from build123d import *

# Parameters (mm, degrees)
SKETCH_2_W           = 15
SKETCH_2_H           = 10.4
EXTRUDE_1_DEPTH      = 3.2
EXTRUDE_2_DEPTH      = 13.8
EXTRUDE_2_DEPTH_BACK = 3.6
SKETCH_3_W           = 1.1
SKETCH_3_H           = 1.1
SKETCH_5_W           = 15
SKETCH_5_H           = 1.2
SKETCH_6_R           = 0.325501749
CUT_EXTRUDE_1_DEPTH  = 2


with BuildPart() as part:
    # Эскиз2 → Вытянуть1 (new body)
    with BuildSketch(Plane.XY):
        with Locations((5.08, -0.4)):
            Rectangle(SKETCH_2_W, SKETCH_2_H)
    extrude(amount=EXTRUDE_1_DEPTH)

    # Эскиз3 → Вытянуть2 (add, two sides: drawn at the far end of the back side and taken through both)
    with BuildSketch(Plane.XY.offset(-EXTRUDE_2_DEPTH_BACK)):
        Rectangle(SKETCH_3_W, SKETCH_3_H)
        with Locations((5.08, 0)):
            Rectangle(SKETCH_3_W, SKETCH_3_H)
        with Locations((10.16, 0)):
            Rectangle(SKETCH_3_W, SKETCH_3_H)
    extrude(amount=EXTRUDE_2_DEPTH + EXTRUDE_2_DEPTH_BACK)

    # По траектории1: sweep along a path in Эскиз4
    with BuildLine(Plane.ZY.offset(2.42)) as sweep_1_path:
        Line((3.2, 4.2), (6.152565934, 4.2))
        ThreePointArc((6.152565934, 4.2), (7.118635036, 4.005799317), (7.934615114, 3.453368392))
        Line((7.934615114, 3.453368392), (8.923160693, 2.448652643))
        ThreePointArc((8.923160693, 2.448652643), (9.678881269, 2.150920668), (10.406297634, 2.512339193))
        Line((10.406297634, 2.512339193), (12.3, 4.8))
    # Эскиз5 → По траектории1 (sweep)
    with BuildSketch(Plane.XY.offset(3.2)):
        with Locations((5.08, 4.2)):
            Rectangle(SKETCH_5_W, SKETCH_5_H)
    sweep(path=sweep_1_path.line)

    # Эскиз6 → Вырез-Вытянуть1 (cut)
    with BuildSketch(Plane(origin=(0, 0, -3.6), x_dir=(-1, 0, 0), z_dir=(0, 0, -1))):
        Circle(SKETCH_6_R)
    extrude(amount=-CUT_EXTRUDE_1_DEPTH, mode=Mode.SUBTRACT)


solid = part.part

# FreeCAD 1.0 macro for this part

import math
import FreeCAD as App
import Part
import Sketcher

V = App.Vector

doc = App.newDocument("Part")
params = doc.addObject("Spreadsheet::Sheet", "Params")
for row, (alias, value) in enumerate([
    ("sketch1_width", "15 mm"),
    ("sketch1_height", "10.4 mm"),
    ("pad1_length", "3.2 mm"),
    ("sketch2_width", "1.1 mm"),
    ("pad2_length", "13.8 mm"),
    ("pad2_length2", "3.6 mm"),
    ("sketch3_width", "15 mm"),
    ("sketch3_height", "1.2 mm"),
    ("sketch4_radius", "1 mm"),
    ("sketch4_radius2", "2.5 mm"),
    ("pocket1_length", "2 mm"),
], start=1):
    params.set(f"A{row}", alias)
    params.set(f"B{row}", "=" + value)
    params.setAlias(f"B{row}", alias)

body = doc.addObject("PartDesign::Body", "Body")

sketch1 = body.newObject("Sketcher::SketchObject", "Sketch")
sketch1.AttachmentSupport = (doc.getObject("XY_Plane"), [""])
sketch1.MapMode = "FlatFace"
sketch1.addGeometry([
    Part.LineSegment(V(-2.42, 4.8, 0), V(-2.42, -5.6, 0)),
    Part.LineSegment(V(-2.42, -5.6, 0), V(12.58, -5.6, 0)),
    Part.LineSegment(V(12.58, -5.6, 0), V(12.58, 4.8, 0)),
    Part.LineSegment(V(12.58, 4.8, 0), V(-2.42, 4.8, 0)),
], False)
sketch1.addConstraint([
    Sketcher.Constraint("Coincident", 0, 2, 1, 1),
    Sketcher.Constraint("Coincident", 1, 2, 2, 1),
    Sketcher.Constraint("Coincident", 2, 2, 3, 1),
    Sketcher.Constraint("Coincident", 3, 2, 0, 1),
    Sketcher.Constraint("Vertical", 0),
    Sketcher.Constraint("Horizontal", 1),
    Sketcher.Constraint("Vertical", 2),
    Sketcher.Constraint("Horizontal", 3),
    Sketcher.Constraint("DistanceX", 1, 1, 1, 2, 15.0),
    Sketcher.Constraint("DistanceY", 0, 2, 0, 1, 10.4),
    Sketcher.Constraint("DistanceY", 0, 2, -1, 1, 5.6),
    Sketcher.Constraint("DistanceX", 0, 2, -1, 1, 2.42),
])
sketch1.setExpression("Constraints[8]", "Params.sketch1_width")
sketch1.setExpression("Constraints[9]", "Params.sketch1_height")
pad1 = body.newObject("PartDesign::Pad", "Pad")
pad1.Profile = sketch1
pad1.setExpression("Length", "Params.pad1_length")

sketch2 = body.newObject("Sketcher::SketchObject", "Sketch001")
sketch2.AttachmentSupport = (doc.getObject("XY_Plane"), [""])
sketch2.MapMode = "FlatFace"
sketch2.addGeometry([
    Part.LineSegment(V(-0.55, 0.55, 0), V(-0.55, -0.55, 0)),
    Part.LineSegment(V(-0.55, -0.55, 0), V(0.55, -0.55, 0)),
    Part.LineSegment(V(0.55, -0.55, 0), V(0.55, 0.55, 0)),
    Part.LineSegment(V(0.55, 0.55, 0), V(-0.55, 0.55, 0)),
    Part.LineSegment(V(4.53, 0.55, 0), V(4.53, -0.55, 0)),
    Part.LineSegment(V(4.53, -0.55, 0), V(5.63, -0.55, 0)),
    Part.LineSegment(V(5.63, -0.55, 0), V(5.63, 0.55, 0)),
    Part.LineSegment(V(5.63, 0.55, 0), V(4.53, 0.55, 0)),
    Part.LineSegment(V(9.61, 0.55, 0), V(9.61, -0.55, 0)),
    Part.LineSegment(V(9.61, -0.55, 0), V(10.71, -0.55, 0)),
    Part.LineSegment(V(10.71, -0.55, 0), V(10.71, 0.55, 0)),
    Part.LineSegment(V(10.71, 0.55, 0), V(9.61, 0.55, 0)),
], False)
sketch2.addConstraint([
    Sketcher.Constraint("Coincident", 0, 2, 1, 1),
    Sketcher.Constraint("Coincident", 1, 2, 2, 1),
    Sketcher.Constraint("Coincident", 2, 2, 3, 1),
    Sketcher.Constraint("Coincident", 3, 2, 0, 1),
    Sketcher.Constraint("Coincident", 4, 2, 5, 1),
    Sketcher.Constraint("Coincident", 5, 2, 6, 1),
    Sketcher.Constraint("Coincident", 6, 2, 7, 1),
    Sketcher.Constraint("Coincident", 7, 2, 4, 1),
    Sketcher.Constraint("Coincident", 8, 2, 9, 1),
    Sketcher.Constraint("Coincident", 9, 2, 10, 1),
    Sketcher.Constraint("Coincident", 10, 2, 11, 1),
    Sketcher.Constraint("Coincident", 11, 2, 8, 1),
    Sketcher.Constraint("Vertical", 0),
    Sketcher.Constraint("Horizontal", 1),
    Sketcher.Constraint("Vertical", 2),
    Sketcher.Constraint("Horizontal", 3),
    Sketcher.Constraint("Vertical", 4),
    Sketcher.Constraint("Horizontal", 5),
    Sketcher.Constraint("Vertical", 6),
    Sketcher.Constraint("Horizontal", 7),
    Sketcher.Constraint("Vertical", 8),
    Sketcher.Constraint("Horizontal", 9),
    Sketcher.Constraint("Vertical", 10),
    Sketcher.Constraint("Horizontal", 11),
    Sketcher.Constraint("Symmetric", 0, 2, 2, 2, -1, 1),
    Sketcher.Constraint("Horizontal", 1, 2, 4, 2),
    Sketcher.Constraint("Horizontal", 3, 2, 6, 2),
    Sketcher.Constraint("Horizontal", 5, 2, 8, 2),
    Sketcher.Constraint("Horizontal", 7, 2, 10, 2),
    Sketcher.Constraint("Equal", 3, 5),
    Sketcher.Constraint("Equal", 7, 9),
    Sketcher.Constraint("Equal", 11, 0),
    Sketcher.Constraint("DistanceX", 1, 1, 1, 2, 1.1),
    Sketcher.Constraint("DistanceX", -1, 1, 4, 2, 4.53),
    Sketcher.Constraint("DistanceX", -1, 1, 8, 2, 9.61),
])
sketch2.setExpression("Constraints[32]", "Params.sketch2_width")
pad2 = body.newObject("PartDesign::Pad", "Pad001")
pad2.Profile = sketch2
pad2.Type = "TwoLengths"
pad2.setExpression("Length", "Params.pad2_length")
pad2.setExpression("Length2", "Params.pad2_length2")

sketch3 = body.newObject("Sketcher::SketchObject", "Sketch002")
sketch3.AttachmentSupport = (doc.getObject("XY_Plane"), [""])
sketch3.MapMode = "FlatFace"
sketch3.AttachmentOffset = App.Placement(V(0, 0, 3.2), App.Rotation())
sketch3.addGeometry([
    Part.LineSegment(V(-2.42, 4.8, 0), V(-2.42, 3.6, 0)),
    Part.LineSegment(V(-2.42, 3.6, 0), V(12.58, 3.6, 0)),
    Part.LineSegment(V(12.58, 3.6, 0), V(12.58, 4.8, 0)),
    Part.LineSegment(V(12.58, 4.8, 0), V(-2.42, 4.8, 0)),
], False)
sketch3.addConstraint([
    Sketcher.Constraint("Coincident", 0, 2, 1, 1),
    Sketcher.Constraint("Coincident", 1, 2, 2, 1),
    Sketcher.Constraint("Coincident", 2, 2, 3, 1),
    Sketcher.Constraint("Coincident", 3, 2, 0, 1),
    Sketcher.Constraint("Vertical", 0),
    Sketcher.Constraint("Horizontal", 1),
    Sketcher.Constraint("Vertical", 2),
    Sketcher.Constraint("Horizontal", 3),
    Sketcher.Constraint("DistanceX", 1, 1, 1, 2, 15.0),
    Sketcher.Constraint("DistanceY", 0, 2, 0, 1, 1.2),
    Sketcher.Constraint("DistanceY", -1, 1, 0, 2, 3.6),
    Sketcher.Constraint("DistanceX", 0, 2, -1, 1, 2.42),
])
sketch3.setExpression("Constraints[8]", "Params.sketch3_width")
sketch3.setExpression("Constraints[9]", "Params.sketch3_height")

sketch4 = body.newObject("Sketcher::SketchObject", "Sketch003")
sketch4.AttachmentSupport = (doc.getObject("YZ_Plane"), [""])
sketch4.MapMode = "FlatFace"
sketch4.AttachmentOffset = App.Placement(V(0, 0, -2.42), App.Rotation())
sketch4.addGeometry([
    Part.LineSegment(V(4.2, 3.2, 0), V(4.2, 6.152566, 0)),
    Part.ArcOfCircle(Part.Circle(V(1.7, 6.152566, 0), V(0, 0, 1), 2.5), math.radians(0), math.radians(45.464797)),
    Part.LineSegment(V(3.453368, 7.934615, 0), V(2.448653, 8.923161, 0)),
    Part.ArcOfCircle(Part.Circle(V(3.15, 9.63598, 0), V(0, 0, 1), 1), math.radians(129.617612), math.radians(225.464797)),
    Part.LineSegment(V(2.512339, 10.406298, 0), V(4.8, 12.3, 0)),
], False)
sketch4.addConstraint([
    Sketcher.Constraint("Tangent", 0, 2, 1, 1),
    Sketcher.Constraint("Tangent", 1, 2, 2, 1),
    Sketcher.Constraint("Tangent", 2, 2, 3, 2),
    Sketcher.Constraint("Tangent", 3, 1, 4, 1),
    Sketcher.Constraint("Vertical", 0),
    Sketcher.Constraint("Radius", 3, 1.0),
    Sketcher.Constraint("Radius", 1, 2.5),
    Sketcher.Constraint("DistanceX", -1, 1, 1, 3, 1.7),
    Sketcher.Constraint("DistanceY", -1, 1, 0, 1, 3.2),
    Sketcher.Constraint("DistanceX", -1, 1, 4, 2, 4.8),
    Sketcher.Constraint("DistanceY", -1, 1, 4, 2, 12.3),
    Sketcher.Constraint("DistanceX", -1, 1, 3, 3, 3.15),
    Sketcher.Constraint("DistanceY", 0, 1, 0, 2, 2.952566),
    Sketcher.Constraint("DistanceY", -1, 1, 3, 3, 9.63598),
])
sketch4.setExpression("Constraints[5]", "Params.sketch4_radius")
sketch4.setExpression("Constraints[6]", "Params.sketch4_radius2")
doc.recompute()

additivepipe = body.newObject("PartDesign::AdditivePipe", "AdditivePipe")
additivepipe.Profile = sketch3
additivepipe.Spine = (sketch4, ["Edge1", "Edge2", "Edge3", "Edge4", "Edge5"])

sketch5 = body.newObject("Sketcher::SketchObject", "Sketch004")
sketch5.AttachmentSupport = (doc.getObject("XY_Plane"), [""])
sketch5.MapMode = "FlatFace"
sketch5.AttachmentOffset = App.Placement(V(0, 0, -3.6), App.Rotation())
sketch5.addGeometry(Part.Circle(V(0, 0, 0), V(0, 0, 1), 0.325502), False)
sketch5.addConstraint([
    Sketcher.Constraint("Coincident", 0, 3, -1, 1),
    Sketcher.Constraint("Diameter", 0, 0.651003),
])
pocket1 = body.newObject("PartDesign::Pocket", "Pocket")
pocket1.Profile = sketch5
pocket1.setExpression("Length", "Params.pocket1_length")
pocket1.Reversed = True

doc.recompute()
